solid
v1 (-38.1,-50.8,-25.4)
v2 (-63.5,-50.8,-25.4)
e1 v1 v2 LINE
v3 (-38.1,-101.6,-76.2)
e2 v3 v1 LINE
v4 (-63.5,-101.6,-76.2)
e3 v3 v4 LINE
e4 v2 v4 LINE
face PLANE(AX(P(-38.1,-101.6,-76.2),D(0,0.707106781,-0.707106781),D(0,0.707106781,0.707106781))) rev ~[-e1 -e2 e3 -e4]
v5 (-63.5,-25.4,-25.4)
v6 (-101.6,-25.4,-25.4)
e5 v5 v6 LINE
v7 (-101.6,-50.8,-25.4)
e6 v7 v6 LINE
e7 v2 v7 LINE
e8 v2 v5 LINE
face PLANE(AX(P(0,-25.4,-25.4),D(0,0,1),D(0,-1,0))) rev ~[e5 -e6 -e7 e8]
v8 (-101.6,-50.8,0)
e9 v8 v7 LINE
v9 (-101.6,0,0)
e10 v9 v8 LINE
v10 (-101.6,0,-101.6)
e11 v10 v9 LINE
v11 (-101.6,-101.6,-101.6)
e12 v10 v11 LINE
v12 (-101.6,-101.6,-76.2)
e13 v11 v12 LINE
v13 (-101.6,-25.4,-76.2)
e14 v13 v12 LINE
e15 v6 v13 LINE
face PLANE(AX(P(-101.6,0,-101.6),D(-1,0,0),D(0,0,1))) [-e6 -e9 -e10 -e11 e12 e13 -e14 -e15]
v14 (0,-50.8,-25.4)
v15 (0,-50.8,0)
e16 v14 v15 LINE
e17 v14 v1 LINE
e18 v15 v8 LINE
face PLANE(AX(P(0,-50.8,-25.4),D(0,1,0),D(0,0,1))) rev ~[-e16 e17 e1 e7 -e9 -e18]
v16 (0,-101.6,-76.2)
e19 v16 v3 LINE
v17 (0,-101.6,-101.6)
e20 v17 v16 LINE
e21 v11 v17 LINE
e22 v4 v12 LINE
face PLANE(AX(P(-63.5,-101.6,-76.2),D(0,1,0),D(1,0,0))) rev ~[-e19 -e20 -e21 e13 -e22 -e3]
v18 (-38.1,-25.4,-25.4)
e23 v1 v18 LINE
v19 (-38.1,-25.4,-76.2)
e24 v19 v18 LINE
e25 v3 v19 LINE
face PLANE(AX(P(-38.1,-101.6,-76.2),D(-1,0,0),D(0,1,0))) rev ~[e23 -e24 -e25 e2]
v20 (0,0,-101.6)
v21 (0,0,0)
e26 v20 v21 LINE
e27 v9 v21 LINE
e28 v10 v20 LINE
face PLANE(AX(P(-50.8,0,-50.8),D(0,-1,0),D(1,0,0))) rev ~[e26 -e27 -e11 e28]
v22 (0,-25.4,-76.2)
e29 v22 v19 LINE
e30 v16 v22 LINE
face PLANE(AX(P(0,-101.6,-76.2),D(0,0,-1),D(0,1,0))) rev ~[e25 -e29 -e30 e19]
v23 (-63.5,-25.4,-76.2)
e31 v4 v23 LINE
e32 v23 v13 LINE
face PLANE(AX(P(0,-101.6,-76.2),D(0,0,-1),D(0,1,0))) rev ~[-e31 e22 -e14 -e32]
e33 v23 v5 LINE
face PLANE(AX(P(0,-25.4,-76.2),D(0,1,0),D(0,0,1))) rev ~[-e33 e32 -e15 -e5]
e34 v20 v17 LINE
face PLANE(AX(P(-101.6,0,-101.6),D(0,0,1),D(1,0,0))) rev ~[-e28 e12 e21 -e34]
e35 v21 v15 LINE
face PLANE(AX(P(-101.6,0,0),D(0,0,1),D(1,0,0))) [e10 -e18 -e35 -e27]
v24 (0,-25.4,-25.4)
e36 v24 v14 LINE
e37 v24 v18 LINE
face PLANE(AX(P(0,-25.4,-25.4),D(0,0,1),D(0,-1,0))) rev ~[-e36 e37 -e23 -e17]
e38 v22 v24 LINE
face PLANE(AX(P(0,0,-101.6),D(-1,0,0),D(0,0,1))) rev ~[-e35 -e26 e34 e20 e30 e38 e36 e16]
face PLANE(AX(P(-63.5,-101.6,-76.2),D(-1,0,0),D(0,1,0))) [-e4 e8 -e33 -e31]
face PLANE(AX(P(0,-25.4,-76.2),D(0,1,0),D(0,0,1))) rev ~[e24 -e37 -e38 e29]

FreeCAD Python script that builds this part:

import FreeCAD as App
import Part
import Sketcher
from FreeCAD import Vector
Q = App.Units.Quantity

doc = App.newDocument("Part")
body = doc.addObject("PartDesign::Body", "Body")

sketch1 = body.newObject("Sketcher::SketchObject", "Sketch")
sketch1.AttachmentSupport = (doc.getObject("XZ_Plane"), [""])
sketch1.MapMode = "FlatFace"
sketch1.addGeometry(Part.LineSegment(Vector(-102, 0, 0), Vector(-102, -102, 0)), False)
sketch1.addGeometry(Part.LineSegment(Vector(-102, -102, 0), Vector(0, -102, 0)), False)
sketch1.addGeometry(Part.LineSegment(Vector(0, -102, 0), Vector(0, 0, 0)), False)
sketch1.addGeometry(Part.LineSegment(Vector(0, 0, 0), Vector(-102, 0, 0)), False)
sketch1.addConstraint(Sketcher.Constraint("Coincident", 0, 2, 1, 1))
sketch1.addConstraint(Sketcher.Constraint("Coincident", 1, 2, 2, 1))
sketch1.addConstraint(Sketcher.Constraint("Coincident", 2, 2, 3, 1))
sketch1.addConstraint(Sketcher.Constraint("Coincident", 3, 2, 0, 1))
sketch1.addConstraint(Sketcher.Constraint("Vertical", 0))
sketch1.addConstraint(Sketcher.Constraint("Horizontal", 1))
sketch1.addConstraint(Sketcher.Constraint("Vertical", 2))
sketch1.addConstraint(Sketcher.Constraint("Horizontal", 3))
sketch1.addConstraint(Sketcher.Constraint("Coincident", 2, 2, -1, 1))
sketch1.addConstraint(Sketcher.Constraint("Equal", 3, 0))
sketch1.addConstraint(Sketcher.Constraint("DistanceX", 1, 1, 1, 2, Q("4 in")))
pad1 = body.newObject("PartDesign::Pad", "Pad")
pad1.Profile = sketch1
pad1.Length = Q("4 in")

sketch2 = body.newObject("Sketcher::SketchObject", "Sketch001")
sketch2.AttachmentSupport = (doc.getObject("YZ_Plane"), [""])
sketch2.MapMode = "FlatFace"
sketch2.addGeometry(Part.LineSegment(Vector(-51, -25, 0), Vector(-51, 0, 0)), False)
sketch2.addGeometry(Part.LineSegment(Vector(-51, 0, 0), Vector(-102, 0, 0)), False)
sketch2.addGeometry(Part.LineSegment(Vector(-102, 0, 0), Vector(-102, -76, 0)), False)
sketch2.addGeometry(Part.LineSegment(Vector(-102, -76, 0), Vector(-25, -76, 0)), False)
sketch2.addGeometry(Part.LineSegment(Vector(-25, -76, 0), Vector(-25, -25, 0)), False)
sketch2.addGeometry(Part.LineSegment(Vector(-25, -25, 0), Vector(-51, -25, 0)), False)
sketch2.addConstraint(Sketcher.Constraint("Coincident", 0, 2, 1, 1))
sketch2.addConstraint(Sketcher.Constraint("Coincident", 1, 2, 2, 1))
sketch2.addConstraint(Sketcher.Constraint("Coincident", 2, 2, 3, 1))
sketch2.addConstraint(Sketcher.Constraint("Coincident", 3, 2, 4, 1))
sketch2.addConstraint(Sketcher.Constraint("Coincident", 4, 2, 5, 1))
sketch2.addConstraint(Sketcher.Constraint("Coincident", 5, 2, 0, 1))
sketch2.addConstraint(Sketcher.Constraint("Vertical", 0))
sketch2.addConstraint(Sketcher.Constraint("Horizontal", 1))
sketch2.addConstraint(Sketcher.Constraint("Vertical", 2))
sketch2.addConstraint(Sketcher.Constraint("Horizontal", 3))
sketch2.addConstraint(Sketcher.Constraint("Vertical", 4))
sketch2.addConstraint(Sketcher.Constraint("Horizontal", 5))
sketch2.addConstraint(Sketcher.Constraint("PointOnObject", 0, 2, -1))
sketch2.addConstraint(Sketcher.Constraint("Equal", 5, 0))
sketch2.addConstraint(Sketcher.Constraint("Equal", 3, 2))
sketch2.addConstraint(Sketcher.Constraint("DistanceX", 1, 2, 1, 1, Q("2 in")))
sketch2.addConstraint(Sketcher.Constraint("DistanceX", 3, 1, 3, 2, Q("3 in")))
sketch2.addConstraint(Sketcher.Constraint("DistanceX", 0, 2, -1, 1, Q("2 in")))
pocket1 = body.newObject("PartDesign::Pocket", "Pocket")
pocket1.Profile = sketch2
pocket1.Length = Q("4.79 in")

sketch3 = body.newObject("Sketcher::SketchObject", "Sketch002")
sketch3.AttachmentSupport = (doc.getObject("XY_Plane"), [""])
sketch3.MapMode = "FlatFace"
sketch3.AttachmentOffset = App.Placement(Vector(0, 0, -3 * 25.4), App.Rotation())
sketch3.addGeometry(Part.LineSegment(Vector(-64, -25, 0), Vector(-64, -102, 0)), False)
sketch3.addGeometry(Part.LineSegment(Vector(-64, -102, 0), Vector(-38, -102, 0)), False)
sketch3.addGeometry(Part.LineSegment(Vector(-38, -102, 0), Vector(-38, -25, 0)), False)
sketch3.addGeometry(Part.LineSegment(Vector(-38, -25, 0), Vector(-64, -25, 0)), False)
sketch3.addConstraint(Sketcher.Constraint("Coincident", 0, 2, 1, 1))
sketch3.addConstraint(Sketcher.Constraint("Coincident", 1, 2, 2, 1))
sketch3.addConstraint(Sketcher.Constraint("Coincident", 2, 2, 3, 1))
sketch3.addConstraint(Sketcher.Constraint("Coincident", 3, 2, 0, 1))
sketch3.addConstraint(Sketcher.Constraint("Vertical", 0))
sketch3.addConstraint(Sketcher.Constraint("Horizontal", 1))
sketch3.addConstraint(Sketcher.Constraint("Vertical", 2))
sketch3.addConstraint(Sketcher.Constraint("Horizontal", 3))
sketch3.addConstraint(Sketcher.Constraint("DistanceX", 1, 1, 1, 2, Q("1 in")))
sketch3.addConstraint(Sketcher.Constraint("DistanceY", 0, 2, 0, 1, Q("3 in")))
sketch3.addConstraint(Sketcher.Constraint("DistanceY", 0, 2, -1, 1, Q("4 in")))
sketch3.addConstraint(Sketcher.Constraint("DistanceX", 0, 2, -1, 1, Q("2.5 in")))
pad2 = body.newObject("PartDesign::Pad", "Pad001")
pad2.Profile = sketch3
pad2.Length = Q("2 in")

sketch4 = body.newObject("Sketcher::SketchObject", "Sketch003")
sketch4.AttachmentSupport = (doc.getObject("YZ_Plane"), [""])
sketch4.MapMode = "FlatFace"
sketch4.AttachmentOffset = App.Placement(Vector(0, 0, -1.5 * 25.4), App.Rotation())
sketch4.addGeometry(Part.LineSegment(Vector(-102, -76, 0), Vector(-51, -25, 0)), False)
sketch4.addGeometry(Part.LineSegment(Vector(-51, -25, 0), Vector(-102, -25, 0)), False)
sketch4.addGeometry(Part.LineSegment(Vector(-102, -25, 0), Vector(-102, -76, 0)), False)
sketch4.addConstraint(Sketcher.Constraint("Coincident", 0, 2, 1, 1))
sketch4.addConstraint(Sketcher.Constraint("Coincident", 1, 2, 2, 1))
sketch4.addConstraint(Sketcher.Constraint("Coincident", 2, 2, 0, 1))
sketch4.addConstraint(Sketcher.Constraint("Horizontal", 1))
sketch4.addConstraint(Sketcher.Constraint("Vertical", 2))
sketch4.addConstraint(Sketcher.Constraint("Equal", 1, 2))
sketch4.addConstraint(Sketcher.Constraint("DistanceX", 1, 2, 1, 1, Q("2 in")))
sketch4.addConstraint(Sketcher.Constraint("DistanceX", 0, 2, -1, 1, Q("2 in")))
sketch4.addConstraint(Sketcher.Constraint("DistanceY", 0, 2, -1, 1, Q("1 in")))
pocket2 = body.newObject("PartDesign::Pocket", "Pocket001")
pocket2.Profile = sketch4
pocket2.Length = Q("3.92 in")

doc.recompute()
